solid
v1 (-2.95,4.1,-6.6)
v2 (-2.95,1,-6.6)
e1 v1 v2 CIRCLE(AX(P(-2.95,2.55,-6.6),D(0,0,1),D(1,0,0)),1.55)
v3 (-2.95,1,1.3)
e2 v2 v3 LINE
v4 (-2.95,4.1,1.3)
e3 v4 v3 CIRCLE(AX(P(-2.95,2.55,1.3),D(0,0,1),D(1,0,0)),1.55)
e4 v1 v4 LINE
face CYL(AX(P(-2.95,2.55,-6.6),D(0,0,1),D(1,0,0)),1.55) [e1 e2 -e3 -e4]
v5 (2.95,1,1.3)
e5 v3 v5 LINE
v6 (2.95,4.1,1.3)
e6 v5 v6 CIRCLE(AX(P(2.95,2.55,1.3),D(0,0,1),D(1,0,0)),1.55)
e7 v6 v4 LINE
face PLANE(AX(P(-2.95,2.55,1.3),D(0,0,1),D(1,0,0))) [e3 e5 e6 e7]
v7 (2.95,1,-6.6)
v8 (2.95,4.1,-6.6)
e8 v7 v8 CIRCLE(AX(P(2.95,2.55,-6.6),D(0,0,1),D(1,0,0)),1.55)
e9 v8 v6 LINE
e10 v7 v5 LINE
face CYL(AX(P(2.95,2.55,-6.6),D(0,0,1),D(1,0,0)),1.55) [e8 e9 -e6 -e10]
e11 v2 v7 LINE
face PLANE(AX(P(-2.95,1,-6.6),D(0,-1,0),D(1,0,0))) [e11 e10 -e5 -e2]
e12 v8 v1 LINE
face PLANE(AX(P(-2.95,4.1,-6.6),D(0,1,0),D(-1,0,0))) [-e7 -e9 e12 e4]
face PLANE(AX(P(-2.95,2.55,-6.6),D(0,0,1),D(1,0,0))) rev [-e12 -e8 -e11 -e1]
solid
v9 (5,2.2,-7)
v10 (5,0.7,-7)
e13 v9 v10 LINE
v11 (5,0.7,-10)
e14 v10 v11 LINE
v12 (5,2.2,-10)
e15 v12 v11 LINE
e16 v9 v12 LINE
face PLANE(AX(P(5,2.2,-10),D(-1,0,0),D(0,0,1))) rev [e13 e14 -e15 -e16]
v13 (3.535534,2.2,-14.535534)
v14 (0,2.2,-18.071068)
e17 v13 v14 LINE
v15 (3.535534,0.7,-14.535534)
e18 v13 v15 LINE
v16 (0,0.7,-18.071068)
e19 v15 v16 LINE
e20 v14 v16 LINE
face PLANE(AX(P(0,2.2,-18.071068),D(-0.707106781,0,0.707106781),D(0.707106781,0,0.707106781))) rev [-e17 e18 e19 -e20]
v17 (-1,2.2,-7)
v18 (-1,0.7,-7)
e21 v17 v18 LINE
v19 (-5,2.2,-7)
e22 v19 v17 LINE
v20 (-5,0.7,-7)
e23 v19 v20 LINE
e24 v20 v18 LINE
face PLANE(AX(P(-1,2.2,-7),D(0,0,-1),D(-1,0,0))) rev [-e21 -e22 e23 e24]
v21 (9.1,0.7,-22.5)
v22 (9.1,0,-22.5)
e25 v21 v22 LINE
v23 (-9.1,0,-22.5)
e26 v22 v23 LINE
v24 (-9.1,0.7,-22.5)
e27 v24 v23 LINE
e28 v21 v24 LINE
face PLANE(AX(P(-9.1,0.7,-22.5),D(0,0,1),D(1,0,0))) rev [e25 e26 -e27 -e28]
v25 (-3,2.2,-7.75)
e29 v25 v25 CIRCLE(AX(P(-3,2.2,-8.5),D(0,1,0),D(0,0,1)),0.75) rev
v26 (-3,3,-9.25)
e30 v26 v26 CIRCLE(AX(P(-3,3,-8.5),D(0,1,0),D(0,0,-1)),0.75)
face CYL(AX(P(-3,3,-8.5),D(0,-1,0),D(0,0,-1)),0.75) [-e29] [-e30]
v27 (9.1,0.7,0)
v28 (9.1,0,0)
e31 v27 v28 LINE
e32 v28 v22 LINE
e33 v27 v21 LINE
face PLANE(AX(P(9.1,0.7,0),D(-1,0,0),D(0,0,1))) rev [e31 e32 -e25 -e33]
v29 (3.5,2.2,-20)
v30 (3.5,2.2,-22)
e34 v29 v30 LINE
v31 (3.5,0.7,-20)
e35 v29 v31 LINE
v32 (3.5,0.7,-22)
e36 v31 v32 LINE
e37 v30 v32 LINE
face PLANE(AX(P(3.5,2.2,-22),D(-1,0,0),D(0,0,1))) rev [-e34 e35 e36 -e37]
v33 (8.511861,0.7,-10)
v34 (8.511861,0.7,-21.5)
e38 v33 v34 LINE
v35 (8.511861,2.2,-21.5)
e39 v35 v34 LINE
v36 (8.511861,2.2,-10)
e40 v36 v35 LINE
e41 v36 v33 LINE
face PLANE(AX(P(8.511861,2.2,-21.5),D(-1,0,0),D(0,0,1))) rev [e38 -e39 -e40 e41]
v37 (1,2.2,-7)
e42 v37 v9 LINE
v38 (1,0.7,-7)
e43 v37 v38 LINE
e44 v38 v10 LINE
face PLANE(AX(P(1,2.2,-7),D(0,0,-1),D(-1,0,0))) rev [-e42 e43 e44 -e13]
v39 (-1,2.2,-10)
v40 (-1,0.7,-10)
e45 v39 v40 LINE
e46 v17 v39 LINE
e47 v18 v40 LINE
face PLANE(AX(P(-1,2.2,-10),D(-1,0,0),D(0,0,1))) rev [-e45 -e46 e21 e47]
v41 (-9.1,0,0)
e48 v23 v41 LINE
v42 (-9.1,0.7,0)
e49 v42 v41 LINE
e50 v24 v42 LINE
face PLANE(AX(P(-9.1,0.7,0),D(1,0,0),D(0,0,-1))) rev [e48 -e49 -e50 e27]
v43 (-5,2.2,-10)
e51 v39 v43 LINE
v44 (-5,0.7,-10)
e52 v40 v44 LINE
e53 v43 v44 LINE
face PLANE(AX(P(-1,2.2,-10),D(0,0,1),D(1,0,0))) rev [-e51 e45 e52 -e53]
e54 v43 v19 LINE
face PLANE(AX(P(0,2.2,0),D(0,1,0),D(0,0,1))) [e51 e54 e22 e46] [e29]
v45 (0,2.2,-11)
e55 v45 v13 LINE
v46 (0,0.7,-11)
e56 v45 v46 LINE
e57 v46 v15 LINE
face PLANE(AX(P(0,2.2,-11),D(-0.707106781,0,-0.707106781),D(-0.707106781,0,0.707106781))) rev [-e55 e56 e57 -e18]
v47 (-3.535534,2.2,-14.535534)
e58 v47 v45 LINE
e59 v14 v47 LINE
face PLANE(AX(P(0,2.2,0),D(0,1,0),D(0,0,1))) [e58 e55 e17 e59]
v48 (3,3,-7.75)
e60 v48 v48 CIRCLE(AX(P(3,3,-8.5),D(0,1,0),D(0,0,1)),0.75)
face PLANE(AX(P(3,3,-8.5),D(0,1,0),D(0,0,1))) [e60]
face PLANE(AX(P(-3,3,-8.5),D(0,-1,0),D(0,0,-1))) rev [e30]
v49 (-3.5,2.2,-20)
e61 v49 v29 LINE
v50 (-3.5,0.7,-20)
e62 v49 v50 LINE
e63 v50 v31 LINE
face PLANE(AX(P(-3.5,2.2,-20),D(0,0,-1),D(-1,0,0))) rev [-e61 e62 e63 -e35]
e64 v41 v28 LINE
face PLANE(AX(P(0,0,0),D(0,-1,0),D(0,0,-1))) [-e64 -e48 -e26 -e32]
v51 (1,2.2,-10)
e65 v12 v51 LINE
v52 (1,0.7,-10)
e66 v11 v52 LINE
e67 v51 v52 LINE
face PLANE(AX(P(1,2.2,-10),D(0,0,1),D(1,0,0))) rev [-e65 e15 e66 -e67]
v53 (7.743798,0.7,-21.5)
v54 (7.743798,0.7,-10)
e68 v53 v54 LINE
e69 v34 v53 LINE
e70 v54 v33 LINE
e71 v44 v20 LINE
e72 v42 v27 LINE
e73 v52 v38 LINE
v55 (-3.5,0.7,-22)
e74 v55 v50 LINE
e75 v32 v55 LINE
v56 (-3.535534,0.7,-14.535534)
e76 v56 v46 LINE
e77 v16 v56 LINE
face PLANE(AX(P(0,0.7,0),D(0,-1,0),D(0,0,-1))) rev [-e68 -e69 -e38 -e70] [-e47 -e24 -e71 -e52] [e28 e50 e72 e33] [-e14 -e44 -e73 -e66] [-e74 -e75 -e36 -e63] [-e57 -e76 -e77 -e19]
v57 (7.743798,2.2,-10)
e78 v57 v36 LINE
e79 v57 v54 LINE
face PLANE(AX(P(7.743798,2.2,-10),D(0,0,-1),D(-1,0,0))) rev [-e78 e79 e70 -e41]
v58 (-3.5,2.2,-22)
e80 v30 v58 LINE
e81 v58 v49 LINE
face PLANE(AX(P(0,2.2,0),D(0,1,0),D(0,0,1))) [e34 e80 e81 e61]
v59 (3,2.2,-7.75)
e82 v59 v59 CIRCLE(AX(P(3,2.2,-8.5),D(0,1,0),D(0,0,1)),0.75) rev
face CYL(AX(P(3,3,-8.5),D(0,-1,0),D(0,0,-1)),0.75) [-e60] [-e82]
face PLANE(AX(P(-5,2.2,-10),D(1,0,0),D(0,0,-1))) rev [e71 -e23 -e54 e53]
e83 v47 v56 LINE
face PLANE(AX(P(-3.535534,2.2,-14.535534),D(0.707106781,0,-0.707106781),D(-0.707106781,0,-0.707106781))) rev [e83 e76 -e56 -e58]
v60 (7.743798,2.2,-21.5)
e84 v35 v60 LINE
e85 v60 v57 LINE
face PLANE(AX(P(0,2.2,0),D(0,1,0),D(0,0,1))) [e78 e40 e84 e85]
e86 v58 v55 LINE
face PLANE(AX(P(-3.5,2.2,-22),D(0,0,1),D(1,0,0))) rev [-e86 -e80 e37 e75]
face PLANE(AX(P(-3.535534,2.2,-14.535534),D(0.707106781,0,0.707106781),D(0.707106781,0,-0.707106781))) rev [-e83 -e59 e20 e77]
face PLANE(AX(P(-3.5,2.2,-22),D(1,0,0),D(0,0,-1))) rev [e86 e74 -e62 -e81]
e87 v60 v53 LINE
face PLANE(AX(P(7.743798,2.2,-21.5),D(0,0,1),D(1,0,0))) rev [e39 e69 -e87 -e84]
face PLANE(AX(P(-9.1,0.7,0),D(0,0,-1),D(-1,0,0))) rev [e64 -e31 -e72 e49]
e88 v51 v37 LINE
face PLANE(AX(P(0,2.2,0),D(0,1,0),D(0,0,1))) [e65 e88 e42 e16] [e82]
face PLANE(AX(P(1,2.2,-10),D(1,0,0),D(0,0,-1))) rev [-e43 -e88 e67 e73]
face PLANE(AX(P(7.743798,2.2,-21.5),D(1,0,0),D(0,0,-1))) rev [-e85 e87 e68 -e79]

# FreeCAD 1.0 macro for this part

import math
import FreeCAD as App
import Part
import Sketcher
Q = App.Units.Quantity


def add_polygon(sketch, points):
    """Adds a closed chain of lines whose ends are joined by coincident constraints."""
    first, n = sketch.GeometryCount, len(points)
    for a, b in zip(points, points[1:] + points[:1]):
        sketch.addGeometry(Part.LineSegment(App.Vector(*a, 0), App.Vector(*b, 0)), False)
    for i in range(n):
        sketch.addConstraint(Sketcher.Constraint("Coincident", first + i, 2, first + (i + 1) % n, 1))

doc = App.newDocument("Part")
params = doc.addObject("Spreadsheet::Sheet", "Params")
for row, (alias, value) in enumerate([
    ("sketch1_width", "18.2 mm"),
    ("sketch1_height", "22.5 mm"),
    ("pad1_length", "0.7 mm"),
    ("sketch2_width", "4 mm"),
    ("sketch2_width2", "7 mm"),
    ("sketch2_height", "3 mm"),
    ("sketch2_height2", "2 mm"),
    ("sketch2_length", "5 mm"),
    ("pad2_length", "2.2 mm"),
    ("sketch3_diameter", "1.5 mm"),
    ("pad3_length", "3 mm"),
    ("sketch4_radius", "1.55 mm"),
    ("sketch4_width", "5.9 mm"),
    ("pad4_length", "7.9 mm"),
], start=1):
    params.set(f"A{row}", alias)
    params.set(f"B{row}", "=" + value)
    params.setAlias(f"B{row}", alias)

body = doc.addObject("PartDesign::Body", "Body")

sketch1 = body.newObject("Sketcher::SketchObject", "Sketch")
sketch1.AttachmentSupport = (doc.getObject("XZ_Plane"), [""])
sketch1.MapMode = "FlatFace"
add_polygon(sketch1, [(-9.1, -22.5), (-9.1, 0), (9.1, 0), (9.1, -22.5)])
sketch1.addConstraint([
    Sketcher.Constraint("Vertical", 0),
    Sketcher.Constraint("Horizontal", 1),
    Sketcher.Constraint("Vertical", 2),
    Sketcher.Constraint("Horizontal", 3),
    Sketcher.Constraint("Symmetric", 0, 2, 1, 2, -1, 1),
    Sketcher.Constraint("DistanceX", 1, 1, 1, 2, Q("18.2 mm")),
    Sketcher.Constraint("DistanceY", 0, 1, 0, 2, Q("22.5 mm")),
])
sketch1.setExpression("Constraints[9]", "Params.sketch1_width")
sketch1.setExpression("Constraints[10]", "Params.sketch1_height")
pad1 = body.newObject("PartDesign::Pad", "Pad")
pad1.Profile = sketch1
pad1.setExpression("Length", "Params.pad1_length")
pad1.Reversed = True

sketch2 = body.newObject("Sketcher::SketchObject", "Sketch001")
sketch2.AttachmentSupport = (doc.getObject("XZ_Plane"), [""])
sketch2.MapMode = "FlatFace"
add_polygon(sketch2, [(0, -18.071068), (-3.535534, -14.535534), (0, -11), (3.535534, -14.535534)])
add_polygon(sketch2, [(-5, -10), (-5, -7), (-1, -7), (-1, -10)])
add_polygon(sketch2, [(1, -10), (1, -7), (5, -7), (5, -10)])
add_polygon(sketch2, [(-3.5, -22), (-3.5, -20), (3.5, -20), (3.5, -22)])
add_polygon(sketch2, [(7.743798, -21.5), (7.743798, -10), (8.511861, -10), (8.511861, -21.5)])
sketch2.addConstraint([
    Sketcher.Constraint("Vertical", 4),
    Sketcher.Constraint("Horizontal", 5),
    Sketcher.Constraint("Vertical", 6),
    Sketcher.Constraint("Horizontal", 7),
    Sketcher.Constraint("Vertical", 8),
    Sketcher.Constraint("Horizontal", 9),
    Sketcher.Constraint("Vertical", 10),
    Sketcher.Constraint("Horizontal", 11),
    Sketcher.Constraint("Vertical", 12),
    Sketcher.Constraint("Horizontal", 13),
    Sketcher.Constraint("Vertical", 14),
    Sketcher.Constraint("Horizontal", 15),
    Sketcher.Constraint("Vertical", 16),
    Sketcher.Constraint("Horizontal", 17),
    Sketcher.Constraint("Vertical", 18),
    Sketcher.Constraint("Horizontal", 19),
    Sketcher.Constraint("Symmetric", 0, 2, 2, 2, -2),
    Sketcher.Constraint("Symmetric", 5, 2, 8, 2, -2),
    Sketcher.Constraint("Symmetric", 7, 2, 10, 2, -2),
    Sketcher.Constraint("PointOnObject", 1, 2, -2),
    Sketcher.Constraint("PointOnObject", 3, 2, -2),
    Sketcher.Constraint("Perpendicular", 0, 1),
    Sketcher.Constraint("Perpendicular", 1, 2),
    Sketcher.Constraint("Horizontal", 11, 2, 16, 2),
    Sketcher.Constraint("DistanceX", 5, 1, 5, 2, Q("4 mm")),
    Sketcher.Constraint("DistanceX", 13, 1, 13, 2, Q("7 mm")),
    Sketcher.Constraint("DistanceY", 4, 1, 4, 2, Q("3 mm")),
    Sketcher.Constraint("DistanceY", 12, 1, 12, 2, Q("2 mm")),
    Sketcher.Constraint("Distance", 0, Q("5 mm")),
    Sketcher.Constraint("DistanceY", 16, 1, 16, 2, Q("11.5 mm")),
    Sketcher.Constraint("DistanceY", 1, 2, -1, 1, Q("11 mm")),
    Sketcher.Constraint("DistanceX", 4, 2, -1, 1, Q("5 mm")),
    Sketcher.Constraint("DistanceY", 4, 2, -1, 1, Q("7 mm")),
    Sketcher.Constraint("DistanceY", 12, 2, -1, 1, Q("20 mm")),
    Sketcher.Constraint("DistanceX", 12, 2, -1, 1, Q("3.5 mm")),
    Sketcher.Constraint("DistanceX", 17, 1, 17, 2, Q("0.768063 mm")),
    Sketcher.Constraint("DistanceX", -1, 1, 17, 2, Q("8.511861 mm")),
])
sketch2.setExpression("Constraints[44]", "Params.sketch2_width")
sketch2.setExpression("Constraints[45]", "Params.sketch2_width2")
sketch2.setExpression("Constraints[46]", "Params.sketch2_height")
sketch2.setExpression("Constraints[47]", "Params.sketch2_height2")
sketch2.setExpression("Constraints[48]", "Params.sketch2_length")
pad2 = body.newObject("PartDesign::Pad", "Pad001")
pad2.Profile = sketch2
pad2.setExpression("Length", "Params.pad2_length")
pad2.Reversed = True

sketch3 = body.newObject("Sketcher::SketchObject", "Sketch002")
sketch3.AttachmentSupport = (doc.getObject("XZ_Plane"), [""])
sketch3.MapMode = "FlatFace"
sketch3.addGeometry([
    Part.Circle(App.Vector(3, -8.5, 0), App.Vector(0, 0, 1), 0.75),
    Part.Circle(App.Vector(-3, -8.5, 0), App.Vector(0, 0, 1), 0.75),
], False)
sketch3.addConstraint([
    Sketcher.Constraint("Equal", 0, 1),
    Sketcher.Constraint("Symmetric", 0, 3, 1, 3, -2),
    Sketcher.Constraint("Diameter", 0, Q("1.5 mm")),
    Sketcher.Constraint("DistanceX", -1, 1, 0, 3, Q("3 mm")),
    Sketcher.Constraint("DistanceY", 0, 3, -1, 1, Q("8.5 mm")),
])
sketch3.setExpression("Constraints[2]", "Params.sketch3_diameter")
pad3 = body.newObject("PartDesign::Pad", "Pad002")
pad3.Profile = sketch3
pad3.setExpression("Length", "Params.pad3_length")
pad3.Reversed = True
body2 = doc.addObject("PartDesign::Body", "Body001")

sketch4 = body2.newObject("Sketcher::SketchObject", "Sketch003")
sketch4.AttachmentSupport = (doc.getObject("XY_Plane001"), [""])
sketch4.MapMode = "FlatFace"
sketch4.AttachmentOffset = App.Placement(App.Vector(0, 0, 1.3), App.Rotation())
sketch4.addGeometry([
    Part.LineSegment(App.Vector(2.95, 4.1, 0), App.Vector(-2.95, 4.1, 0)),
    Part.ArcOfCircle(Part.Circle(App.Vector(-2.95, 2.55, 0), App.Vector(0, 0, 1), 1.55), math.radians(90), math.radians(270)),
    Part.LineSegment(App.Vector(-2.95, 1, 0), App.Vector(2.95, 1, 0)),
    Part.ArcOfCircle(Part.Circle(App.Vector(2.95, 2.55, 0), App.Vector(0, 0, 1), 1.55), math.radians(-90), math.radians(90)),
], False)
sketch4.addConstraint([
    Sketcher.Constraint("Tangent", 0, 2, 1, 1),
    Sketcher.Constraint("Tangent", 1, 2, 2, 1),
    Sketcher.Constraint("Tangent", 2, 2, 3, 1),
    Sketcher.Constraint("Tangent", 3, 2, 0, 1),
    Sketcher.Constraint("Horizontal", 0),
    Sketcher.Constraint("Horizontal", 2),
    Sketcher.Constraint("Radius", 1, Q("1.55 mm")),
    Sketcher.Constraint("DistanceX", 0, 2, 0, 1, Q("5.9 mm")),
    Sketcher.Constraint("DistanceY", -1, 1, 1, 2, Q("1 mm")),
    Sketcher.Constraint("DistanceX", 1, 3, -1, 1, Q("2.95 mm")),
])
sketch4.setExpression("Constraints[6]", "Params.sketch4_radius")
sketch4.setExpression("Constraints[7]", "Params.sketch4_width")
pad4 = body2.newObject("PartDesign::Pad", "Pad003")
pad4.Profile = sketch4
pad4.setExpression("Length", "Params.pad4_length")
pad4.Reversed = True

doc.recompute()
